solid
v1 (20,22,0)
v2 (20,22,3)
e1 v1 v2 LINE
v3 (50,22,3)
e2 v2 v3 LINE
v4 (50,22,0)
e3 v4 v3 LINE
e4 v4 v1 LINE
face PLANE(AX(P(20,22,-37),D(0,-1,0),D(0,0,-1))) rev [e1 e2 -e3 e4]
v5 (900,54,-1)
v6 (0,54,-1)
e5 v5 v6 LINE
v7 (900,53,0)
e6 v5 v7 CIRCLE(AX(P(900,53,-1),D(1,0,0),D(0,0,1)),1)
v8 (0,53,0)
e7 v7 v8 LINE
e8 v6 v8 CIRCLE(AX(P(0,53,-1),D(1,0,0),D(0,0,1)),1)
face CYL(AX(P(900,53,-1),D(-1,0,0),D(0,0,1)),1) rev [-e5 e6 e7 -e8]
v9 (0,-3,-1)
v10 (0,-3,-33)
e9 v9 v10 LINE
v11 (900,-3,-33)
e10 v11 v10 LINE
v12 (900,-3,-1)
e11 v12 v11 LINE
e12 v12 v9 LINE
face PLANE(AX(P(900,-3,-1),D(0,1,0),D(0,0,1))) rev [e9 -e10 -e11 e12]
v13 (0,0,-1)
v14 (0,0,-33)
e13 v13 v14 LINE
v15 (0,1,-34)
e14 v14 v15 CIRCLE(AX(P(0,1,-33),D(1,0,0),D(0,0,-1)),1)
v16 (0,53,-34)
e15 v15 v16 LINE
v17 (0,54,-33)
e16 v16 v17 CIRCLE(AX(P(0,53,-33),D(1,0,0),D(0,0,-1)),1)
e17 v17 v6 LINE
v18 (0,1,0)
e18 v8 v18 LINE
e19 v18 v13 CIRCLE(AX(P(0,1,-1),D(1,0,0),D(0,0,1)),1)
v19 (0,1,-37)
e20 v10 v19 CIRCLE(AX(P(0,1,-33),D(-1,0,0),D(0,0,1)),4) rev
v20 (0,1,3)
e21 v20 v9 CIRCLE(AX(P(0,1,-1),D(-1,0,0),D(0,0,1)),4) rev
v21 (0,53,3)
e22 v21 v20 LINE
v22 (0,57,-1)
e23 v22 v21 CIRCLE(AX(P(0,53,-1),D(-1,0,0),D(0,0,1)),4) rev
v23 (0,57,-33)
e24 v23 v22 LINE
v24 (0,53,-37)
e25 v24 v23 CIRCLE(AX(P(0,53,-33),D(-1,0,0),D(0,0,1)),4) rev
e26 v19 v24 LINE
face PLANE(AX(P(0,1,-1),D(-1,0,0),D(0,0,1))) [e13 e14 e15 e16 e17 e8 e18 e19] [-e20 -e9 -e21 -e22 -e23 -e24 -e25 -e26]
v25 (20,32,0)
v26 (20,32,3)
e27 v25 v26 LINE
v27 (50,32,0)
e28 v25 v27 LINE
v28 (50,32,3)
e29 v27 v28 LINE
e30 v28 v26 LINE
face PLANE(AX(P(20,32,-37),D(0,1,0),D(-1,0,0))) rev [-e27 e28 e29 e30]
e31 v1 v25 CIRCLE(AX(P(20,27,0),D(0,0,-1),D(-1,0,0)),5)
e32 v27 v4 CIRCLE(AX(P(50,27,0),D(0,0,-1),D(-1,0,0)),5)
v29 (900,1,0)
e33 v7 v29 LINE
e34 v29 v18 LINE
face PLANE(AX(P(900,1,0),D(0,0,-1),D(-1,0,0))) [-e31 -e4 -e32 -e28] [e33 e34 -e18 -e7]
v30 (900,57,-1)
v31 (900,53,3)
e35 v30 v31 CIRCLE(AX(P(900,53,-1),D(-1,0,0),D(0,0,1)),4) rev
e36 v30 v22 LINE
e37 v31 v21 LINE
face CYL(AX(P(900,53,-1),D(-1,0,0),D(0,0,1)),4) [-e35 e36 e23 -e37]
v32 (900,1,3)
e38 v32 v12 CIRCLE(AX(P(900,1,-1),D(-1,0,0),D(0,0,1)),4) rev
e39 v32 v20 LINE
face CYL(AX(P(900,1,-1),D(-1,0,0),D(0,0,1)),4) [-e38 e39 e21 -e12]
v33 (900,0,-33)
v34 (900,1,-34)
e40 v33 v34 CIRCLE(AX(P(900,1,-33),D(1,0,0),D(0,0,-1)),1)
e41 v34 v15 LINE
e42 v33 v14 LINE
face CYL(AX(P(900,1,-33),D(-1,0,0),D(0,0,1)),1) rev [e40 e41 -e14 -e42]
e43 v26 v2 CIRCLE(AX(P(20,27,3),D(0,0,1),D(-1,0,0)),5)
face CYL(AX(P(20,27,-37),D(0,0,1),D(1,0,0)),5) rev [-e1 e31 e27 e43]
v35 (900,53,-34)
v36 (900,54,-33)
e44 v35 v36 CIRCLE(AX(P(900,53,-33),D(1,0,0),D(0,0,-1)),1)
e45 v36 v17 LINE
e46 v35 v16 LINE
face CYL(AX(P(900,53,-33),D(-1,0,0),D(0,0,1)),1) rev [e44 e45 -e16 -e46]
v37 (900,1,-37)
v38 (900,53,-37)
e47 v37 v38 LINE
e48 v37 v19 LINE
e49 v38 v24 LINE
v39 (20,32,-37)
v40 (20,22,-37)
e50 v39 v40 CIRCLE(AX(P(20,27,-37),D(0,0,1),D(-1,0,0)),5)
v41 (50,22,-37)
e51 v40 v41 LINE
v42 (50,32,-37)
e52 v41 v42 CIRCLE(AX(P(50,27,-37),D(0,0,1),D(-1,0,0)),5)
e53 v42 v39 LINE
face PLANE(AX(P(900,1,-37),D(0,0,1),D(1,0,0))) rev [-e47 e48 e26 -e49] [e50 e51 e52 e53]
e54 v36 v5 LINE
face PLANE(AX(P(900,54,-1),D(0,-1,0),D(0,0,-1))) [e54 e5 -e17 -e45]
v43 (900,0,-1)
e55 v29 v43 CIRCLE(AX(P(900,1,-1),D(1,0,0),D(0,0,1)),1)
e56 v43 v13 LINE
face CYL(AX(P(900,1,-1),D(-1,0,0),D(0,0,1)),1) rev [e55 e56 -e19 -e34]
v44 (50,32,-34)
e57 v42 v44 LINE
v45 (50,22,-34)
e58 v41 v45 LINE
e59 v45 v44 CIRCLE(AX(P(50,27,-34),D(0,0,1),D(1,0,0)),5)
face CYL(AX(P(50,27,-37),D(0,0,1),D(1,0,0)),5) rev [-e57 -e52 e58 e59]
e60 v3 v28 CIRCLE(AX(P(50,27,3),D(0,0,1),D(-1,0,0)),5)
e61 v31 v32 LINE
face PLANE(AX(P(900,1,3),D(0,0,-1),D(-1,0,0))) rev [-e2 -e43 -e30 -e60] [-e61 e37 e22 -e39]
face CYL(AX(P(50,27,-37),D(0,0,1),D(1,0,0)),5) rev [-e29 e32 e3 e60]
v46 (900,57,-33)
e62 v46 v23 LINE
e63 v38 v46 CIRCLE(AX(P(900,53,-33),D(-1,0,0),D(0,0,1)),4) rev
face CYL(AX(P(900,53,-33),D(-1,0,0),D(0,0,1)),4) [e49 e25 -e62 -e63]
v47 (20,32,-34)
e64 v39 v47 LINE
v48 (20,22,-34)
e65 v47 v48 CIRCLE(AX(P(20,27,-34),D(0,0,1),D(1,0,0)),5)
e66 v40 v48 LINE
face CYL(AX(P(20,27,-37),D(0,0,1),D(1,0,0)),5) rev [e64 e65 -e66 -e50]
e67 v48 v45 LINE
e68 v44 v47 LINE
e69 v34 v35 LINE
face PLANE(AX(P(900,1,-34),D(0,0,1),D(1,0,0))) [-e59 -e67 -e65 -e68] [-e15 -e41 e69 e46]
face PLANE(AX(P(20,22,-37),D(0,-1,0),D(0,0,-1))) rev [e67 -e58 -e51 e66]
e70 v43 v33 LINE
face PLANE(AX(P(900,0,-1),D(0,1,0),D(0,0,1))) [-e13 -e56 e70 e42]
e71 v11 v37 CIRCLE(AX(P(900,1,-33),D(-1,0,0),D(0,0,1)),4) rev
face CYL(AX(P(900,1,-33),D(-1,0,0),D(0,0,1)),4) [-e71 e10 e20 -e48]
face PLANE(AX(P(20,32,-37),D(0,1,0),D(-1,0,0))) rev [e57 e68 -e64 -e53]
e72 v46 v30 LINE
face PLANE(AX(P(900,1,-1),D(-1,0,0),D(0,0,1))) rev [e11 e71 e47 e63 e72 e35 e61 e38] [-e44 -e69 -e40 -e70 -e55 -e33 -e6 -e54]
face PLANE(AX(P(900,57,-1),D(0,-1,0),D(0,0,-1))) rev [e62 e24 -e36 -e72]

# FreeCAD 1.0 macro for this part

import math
import FreeCAD as App
import Part
import Sketcher

V = App.Vector
Q = App.Units.Quantity

doc = App.newDocument("Part")
body = doc.addObject("PartDesign::Body", "Body")

# Sketch on YZ plane
sketch1 = body.newObject("Sketcher::SketchObject", "Sketch")
sketch1.AttachmentSupport = (doc.getObject("YZ_Plane"), [""])
sketch1.MapMode = "FlatFace"
sketch1.addGeometry([
    Part.LineSegment(V(53, 3, 0), V(1, 3, 0)),  # 0
    Part.ArcOfCircle(Part.Circle(V(1, -1, 0), V(0, 0, 1), 4), math.radians(90), math.radians(180)),  # 1
    Part.LineSegment(V(-3, -1, 0), V(-3, -33, 0)),  # 2
    Part.ArcOfCircle(Part.Circle(V(1, -33, 0), V(0, 0, 1), 4), math.radians(180), math.radians(270)),  # 3
    Part.LineSegment(V(1, -37, 0), V(53, -37, 0)),  # 4
    Part.ArcOfCircle(Part.Circle(V(53, -33, 0), V(0, 0, 1), 4), math.radians(-90), math.radians(0)),  # 5
    Part.LineSegment(V(57, -33, 0), V(57, -1, 0)),  # 6
    Part.ArcOfCircle(Part.Circle(V(53, -1, 0), V(0, 0, 1), 4), math.radians(0), math.radians(90)),  # 7
    Part.LineSegment(V(1, 0, 0), V(53, 0, 0)),  # 8
    Part.ArcOfCircle(Part.Circle(V(53, -1, 0), V(0, 0, 1), 1), math.radians(0), math.radians(90)),  # 9
    Part.LineSegment(V(54, -1, 0), V(54, -33, 0)),  # 10
    Part.ArcOfCircle(Part.Circle(V(53, -33, 0), V(0, 0, 1), 1), math.radians(-90), math.radians(0)),  # 11
    Part.LineSegment(V(53, -34, 0), V(1, -34, 0)),  # 12
    Part.ArcOfCircle(Part.Circle(V(1, -33, 0), V(0, 0, 1), 1), math.radians(-180), math.radians(-90)),  # 13
    Part.LineSegment(V(0, -33, 0), V(0, -1, 0)),  # 14
    Part.ArcOfCircle(Part.Circle(V(1, -1, 0), V(0, 0, 1), 1), math.radians(90), math.radians(180)),  # 15
], False)
sketch1.addConstraint([
    Sketcher.Constraint("Tangent", 0, 2, 1, 1),
    Sketcher.Constraint("Tangent", 1, 2, 2, 1),
    Sketcher.Constraint("Tangent", 2, 2, 3, 1),
    Sketcher.Constraint("Tangent", 3, 2, 4, 1),
    Sketcher.Constraint("Tangent", 4, 2, 5, 1),
    Sketcher.Constraint("Tangent", 5, 2, 6, 1),
    Sketcher.Constraint("Tangent", 6, 2, 7, 1),
    Sketcher.Constraint("Tangent", 7, 2, 0, 1),
    Sketcher.Constraint("Tangent", 8, 2, 9, 2),
    Sketcher.Constraint("Tangent", 9, 1, 10, 1),
    Sketcher.Constraint("Tangent", 10, 2, 11, 2),
    Sketcher.Constraint("Tangent", 11, 1, 12, 1),
    Sketcher.Constraint("Tangent", 12, 2, 13, 2),
    Sketcher.Constraint("Tangent", 13, 1, 14, 1),
    Sketcher.Constraint("Tangent", 14, 2, 15, 2),
    Sketcher.Constraint("Tangent", 15, 1, 8, 1),
    Sketcher.Constraint("Horizontal", 0),
    Sketcher.Constraint("Vertical", 2),
    Sketcher.Constraint("Horizontal", 4),
    Sketcher.Constraint("Vertical", 6),
    Sketcher.Constraint("Horizontal", 8),
    Sketcher.Constraint("Vertical", 10),
    Sketcher.Constraint("Horizontal", 12),
    Sketcher.Constraint("Vertical", 14),
    Sketcher.Constraint("Coincident", 9, 3, 7, 3),
    Sketcher.Constraint("Coincident", 11, 3, 5, 3),
    Sketcher.Constraint("Coincident", 13, 3, 3, 3),
    Sketcher.Constraint("Equal", 1, 3),
    Sketcher.Constraint("Equal", 3, 5),
    Sketcher.Constraint("Equal", 5, 7),
    Sketcher.Constraint("Equal", 13, 15),
    Sketcher.Constraint("PointOnObject", 8, 2, -1),
    Sketcher.Constraint("PointOnObject", 13, 1, -2),
    Sketcher.Constraint("Radius", 1, Q("4 mm")),
    Sketcher.Constraint("Radius", 9, Q("1 mm")),
    Sketcher.Constraint("DistanceX", 0, 2, 0, 1, Q("52 mm")),
    Sketcher.Constraint("DistanceY", 2, 2, 2, 1, Q("32 mm")),
])
pad1 = body.newObject("PartDesign::Pad", "Pad")
pad1.Profile = sketch1
pad1.Length = 900

# Sketch on XY plane
sketch2 = body.newObject("Sketcher::SketchObject", "Sketch001")
sketch2.AttachmentSupport = (doc.getObject("XY_Plane"), [""])
sketch2.MapMode = "FlatFace"
sketch2.AttachmentOffset = App.Placement(V(0, 0, 3), App.Rotation())
sketch2.addGeometry([
    Part.LineSegment(V(50, 32, 0), V(20, 32, 0)),
    Part.ArcOfCircle(Part.Circle(V(20, 27, 0), V(0, 0, 1), 5), math.radians(90), math.radians(270)),
    Part.LineSegment(V(20, 22, 0), V(50, 22, 0)),
    Part.ArcOfCircle(Part.Circle(V(50, 27, 0), V(0, 0, 1), 5), math.radians(-90), math.radians(90)),
], False)
sketch2.addConstraint([
    Sketcher.Constraint("Tangent", 0, 2, 1, 1),
    Sketcher.Constraint("Tangent", 1, 2, 2, 1),
    Sketcher.Constraint("Tangent", 2, 2, 3, 1),
    Sketcher.Constraint("Tangent", 3, 2, 0, 1),
    Sketcher.Constraint("Horizontal", 0),
    Sketcher.Constraint("Horizontal", 2),
    Sketcher.Constraint("Radius", 1, Q("5 mm")),
    Sketcher.Constraint("DistanceX", 0, 2, 0, 1, Q("30 mm")),
    Sketcher.Constraint("DistanceX", -1, 1, 1, 3, Q("20 mm")),
    Sketcher.Constraint("DistanceY", -1, 1, 1, 3, Q("27 mm")),
])
pocket1 = body.newObject("PartDesign::Pocket", "Pocket")
pocket1.Profile = sketch2
pocket1.Length = 40

doc.recompute()
